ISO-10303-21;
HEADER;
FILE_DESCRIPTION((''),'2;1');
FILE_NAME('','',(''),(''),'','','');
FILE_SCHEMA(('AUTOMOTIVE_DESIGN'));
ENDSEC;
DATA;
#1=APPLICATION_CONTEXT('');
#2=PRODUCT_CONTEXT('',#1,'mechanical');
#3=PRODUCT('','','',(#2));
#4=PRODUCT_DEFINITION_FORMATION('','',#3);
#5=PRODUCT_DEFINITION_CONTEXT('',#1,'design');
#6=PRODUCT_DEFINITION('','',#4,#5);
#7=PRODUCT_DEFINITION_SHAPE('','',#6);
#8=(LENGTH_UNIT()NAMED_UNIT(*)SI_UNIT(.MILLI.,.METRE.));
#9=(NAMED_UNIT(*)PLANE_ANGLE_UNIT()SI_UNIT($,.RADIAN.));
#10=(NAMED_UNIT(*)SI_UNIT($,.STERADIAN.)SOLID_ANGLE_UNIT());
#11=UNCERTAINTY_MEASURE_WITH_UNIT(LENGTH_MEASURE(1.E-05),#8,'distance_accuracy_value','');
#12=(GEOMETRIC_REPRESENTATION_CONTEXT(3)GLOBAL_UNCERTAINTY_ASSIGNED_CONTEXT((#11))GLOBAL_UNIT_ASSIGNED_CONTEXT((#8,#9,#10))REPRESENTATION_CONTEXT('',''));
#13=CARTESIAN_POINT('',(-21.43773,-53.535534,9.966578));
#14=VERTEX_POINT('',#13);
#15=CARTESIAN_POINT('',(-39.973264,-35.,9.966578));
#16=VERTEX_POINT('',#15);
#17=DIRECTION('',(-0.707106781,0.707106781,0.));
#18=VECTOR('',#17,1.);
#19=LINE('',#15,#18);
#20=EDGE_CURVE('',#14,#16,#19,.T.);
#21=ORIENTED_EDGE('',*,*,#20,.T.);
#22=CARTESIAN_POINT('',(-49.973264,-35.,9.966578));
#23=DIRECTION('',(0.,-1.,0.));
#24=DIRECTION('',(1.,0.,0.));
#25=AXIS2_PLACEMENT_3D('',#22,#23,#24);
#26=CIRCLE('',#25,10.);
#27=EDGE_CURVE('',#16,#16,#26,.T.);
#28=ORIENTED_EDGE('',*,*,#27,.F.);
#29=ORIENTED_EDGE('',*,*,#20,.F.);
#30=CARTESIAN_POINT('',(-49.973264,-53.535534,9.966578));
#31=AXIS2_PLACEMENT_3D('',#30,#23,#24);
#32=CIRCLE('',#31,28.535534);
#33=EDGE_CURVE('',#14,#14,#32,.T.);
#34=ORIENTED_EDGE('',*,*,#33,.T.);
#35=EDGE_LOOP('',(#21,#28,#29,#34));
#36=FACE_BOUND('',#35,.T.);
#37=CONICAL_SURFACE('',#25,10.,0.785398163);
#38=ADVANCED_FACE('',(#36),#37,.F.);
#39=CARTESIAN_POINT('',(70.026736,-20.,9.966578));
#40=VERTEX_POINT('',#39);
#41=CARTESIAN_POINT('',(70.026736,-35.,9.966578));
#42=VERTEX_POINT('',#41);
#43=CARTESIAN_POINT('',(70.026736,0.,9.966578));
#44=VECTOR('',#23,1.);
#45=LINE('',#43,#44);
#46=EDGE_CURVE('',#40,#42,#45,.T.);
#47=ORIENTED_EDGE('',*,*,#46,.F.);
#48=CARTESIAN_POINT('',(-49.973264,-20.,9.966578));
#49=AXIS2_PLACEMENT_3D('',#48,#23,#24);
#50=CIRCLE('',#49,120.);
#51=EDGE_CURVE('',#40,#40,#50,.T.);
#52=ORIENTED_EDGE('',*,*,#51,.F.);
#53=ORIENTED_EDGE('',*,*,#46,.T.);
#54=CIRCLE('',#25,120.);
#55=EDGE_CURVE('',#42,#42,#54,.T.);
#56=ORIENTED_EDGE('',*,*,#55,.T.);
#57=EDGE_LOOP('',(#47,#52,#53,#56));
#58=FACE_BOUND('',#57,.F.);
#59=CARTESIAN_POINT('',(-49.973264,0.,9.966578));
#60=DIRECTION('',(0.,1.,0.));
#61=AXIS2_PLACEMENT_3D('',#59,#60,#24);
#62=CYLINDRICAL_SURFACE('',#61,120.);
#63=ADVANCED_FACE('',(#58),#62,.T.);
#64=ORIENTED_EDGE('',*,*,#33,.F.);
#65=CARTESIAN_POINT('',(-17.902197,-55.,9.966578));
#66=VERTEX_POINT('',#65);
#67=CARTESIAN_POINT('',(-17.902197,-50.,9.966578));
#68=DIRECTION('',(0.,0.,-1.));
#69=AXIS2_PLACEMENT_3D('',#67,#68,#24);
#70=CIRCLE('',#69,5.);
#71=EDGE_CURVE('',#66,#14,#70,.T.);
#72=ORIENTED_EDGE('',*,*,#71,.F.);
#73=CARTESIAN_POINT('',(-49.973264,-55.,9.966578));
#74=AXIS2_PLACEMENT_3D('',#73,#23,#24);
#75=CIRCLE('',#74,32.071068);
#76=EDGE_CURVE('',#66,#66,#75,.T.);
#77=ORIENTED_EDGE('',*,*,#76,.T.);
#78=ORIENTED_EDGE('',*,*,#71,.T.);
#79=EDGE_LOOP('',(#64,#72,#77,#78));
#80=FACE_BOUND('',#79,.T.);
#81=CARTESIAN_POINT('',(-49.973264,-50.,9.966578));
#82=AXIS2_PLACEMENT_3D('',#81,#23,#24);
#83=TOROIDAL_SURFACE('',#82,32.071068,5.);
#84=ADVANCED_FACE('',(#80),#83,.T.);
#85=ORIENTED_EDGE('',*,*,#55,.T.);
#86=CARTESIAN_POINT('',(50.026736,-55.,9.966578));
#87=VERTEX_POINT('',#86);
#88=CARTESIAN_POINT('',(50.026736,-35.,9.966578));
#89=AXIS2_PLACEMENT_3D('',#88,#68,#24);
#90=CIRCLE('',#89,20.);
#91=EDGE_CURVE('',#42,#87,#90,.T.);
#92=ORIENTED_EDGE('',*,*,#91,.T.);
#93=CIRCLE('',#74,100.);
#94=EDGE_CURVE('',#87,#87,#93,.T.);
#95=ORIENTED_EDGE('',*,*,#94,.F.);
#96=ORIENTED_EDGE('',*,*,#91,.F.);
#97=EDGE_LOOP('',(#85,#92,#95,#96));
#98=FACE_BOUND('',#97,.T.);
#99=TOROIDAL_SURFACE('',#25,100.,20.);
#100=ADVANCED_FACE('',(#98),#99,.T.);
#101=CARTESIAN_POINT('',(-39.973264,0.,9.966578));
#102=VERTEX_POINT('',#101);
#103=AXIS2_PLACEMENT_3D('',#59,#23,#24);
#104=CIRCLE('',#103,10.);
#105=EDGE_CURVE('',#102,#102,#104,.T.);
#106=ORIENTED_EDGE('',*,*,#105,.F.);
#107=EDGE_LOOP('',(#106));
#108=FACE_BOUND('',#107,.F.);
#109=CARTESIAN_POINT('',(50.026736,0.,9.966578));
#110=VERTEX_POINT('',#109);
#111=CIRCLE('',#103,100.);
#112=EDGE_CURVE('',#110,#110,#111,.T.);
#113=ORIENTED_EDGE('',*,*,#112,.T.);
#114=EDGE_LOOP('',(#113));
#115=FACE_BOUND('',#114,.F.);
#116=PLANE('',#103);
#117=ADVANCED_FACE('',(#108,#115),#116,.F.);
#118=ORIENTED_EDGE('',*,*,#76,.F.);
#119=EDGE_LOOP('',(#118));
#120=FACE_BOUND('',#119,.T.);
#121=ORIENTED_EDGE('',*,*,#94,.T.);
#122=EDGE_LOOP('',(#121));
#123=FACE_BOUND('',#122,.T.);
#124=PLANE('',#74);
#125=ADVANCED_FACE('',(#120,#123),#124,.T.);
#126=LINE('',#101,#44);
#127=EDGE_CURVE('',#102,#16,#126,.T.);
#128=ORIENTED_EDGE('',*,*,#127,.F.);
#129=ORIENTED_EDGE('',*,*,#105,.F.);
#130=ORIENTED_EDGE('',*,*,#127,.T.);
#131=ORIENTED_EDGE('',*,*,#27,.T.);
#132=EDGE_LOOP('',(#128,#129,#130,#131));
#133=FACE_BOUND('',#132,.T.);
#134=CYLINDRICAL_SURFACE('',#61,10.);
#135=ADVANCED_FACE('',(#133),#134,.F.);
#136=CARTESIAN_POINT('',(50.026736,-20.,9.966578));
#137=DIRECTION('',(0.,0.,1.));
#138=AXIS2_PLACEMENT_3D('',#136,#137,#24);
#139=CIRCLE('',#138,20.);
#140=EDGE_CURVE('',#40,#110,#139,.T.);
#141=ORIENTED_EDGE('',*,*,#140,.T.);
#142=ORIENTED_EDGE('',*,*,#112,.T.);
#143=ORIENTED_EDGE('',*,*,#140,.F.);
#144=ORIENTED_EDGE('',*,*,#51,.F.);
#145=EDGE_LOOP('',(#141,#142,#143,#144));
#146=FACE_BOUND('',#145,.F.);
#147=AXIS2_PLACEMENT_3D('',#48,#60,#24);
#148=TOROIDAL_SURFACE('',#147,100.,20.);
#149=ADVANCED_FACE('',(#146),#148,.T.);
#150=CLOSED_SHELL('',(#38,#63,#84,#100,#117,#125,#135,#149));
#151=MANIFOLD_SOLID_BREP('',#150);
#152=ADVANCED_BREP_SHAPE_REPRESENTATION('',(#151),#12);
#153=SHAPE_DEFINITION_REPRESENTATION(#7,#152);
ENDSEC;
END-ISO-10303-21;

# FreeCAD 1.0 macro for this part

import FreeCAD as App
import Part
import Sketcher
Q = App.Units.Quantity


def edges_at(feature, points):
    """Names of the edges that pass closest to the given points."""
    edges = feature.Shape.Edges
    near = lambda p: min(range(len(edges)), key=lambda i: edges[i].distToShape(Part.Vertex(*p))[0])
    return sorted({f"Edge{near(p) + 1}" for p in points})

doc = App.newDocument("Part")
body = doc.addObject("PartDesign::Body", "Body")

sketch1 = body.newObject("Sketcher::SketchObject", "Sketch")
sketch1.AttachmentSupport = (doc.getObject("XZ_Plane"), [""])
sketch1.MapMode = "FlatFace"
sketch1.addGeometry([
    Part.Circle(App.Vector(-50, 10, 0), App.Vector(0, 0, 1), 120),
    Part.Circle(App.Vector(-50, 10, 0), App.Vector(0, 0, 1), 10),
], False)
sketch1.addConstraint([
    Sketcher.Constraint("Coincident", 1, 3, 0, 3),
    Sketcher.Constraint("Diameter", 0, Q("240 mm")),
    Sketcher.Constraint("Diameter", 1, Q("20 mm")),
    Sketcher.Constraint("DistanceY", -1, 1, 0, 3, Q("9.966578 mm")),
    Sketcher.Constraint("DistanceX", 0, 3, -1, 1, Q("49.973264 mm")),
])
pad1 = body.newObject("PartDesign::Pad", "Pad")
pad1.Profile = sketch1
pad1.Length = 55
doc.recompute()

fillet = body.newObject("PartDesign::Fillet", "Fillet")
fillet.Base = (pad1, edges_at(pad1, [(-169.973, -55, 9.967), (-169.973, 0, 9.967)]))
fillet.Radius = 20
doc.recompute()

chamfer = body.newObject("PartDesign::Chamfer", "Chamfer")
chamfer.Base = (fillet, edges_at(fillet, [(-59.973, -55, 9.967)]))
chamfer.Size = 20
doc.recompute()

fillet2 = body.newObject("PartDesign::Fillet", "Fillet001")
fillet2.Base = (chamfer, edges_at(chamfer, [(-79.973, -55, 9.967), (-149.973, -55, 9.967)]))
fillet2.Radius = 5

doc.recompute()
